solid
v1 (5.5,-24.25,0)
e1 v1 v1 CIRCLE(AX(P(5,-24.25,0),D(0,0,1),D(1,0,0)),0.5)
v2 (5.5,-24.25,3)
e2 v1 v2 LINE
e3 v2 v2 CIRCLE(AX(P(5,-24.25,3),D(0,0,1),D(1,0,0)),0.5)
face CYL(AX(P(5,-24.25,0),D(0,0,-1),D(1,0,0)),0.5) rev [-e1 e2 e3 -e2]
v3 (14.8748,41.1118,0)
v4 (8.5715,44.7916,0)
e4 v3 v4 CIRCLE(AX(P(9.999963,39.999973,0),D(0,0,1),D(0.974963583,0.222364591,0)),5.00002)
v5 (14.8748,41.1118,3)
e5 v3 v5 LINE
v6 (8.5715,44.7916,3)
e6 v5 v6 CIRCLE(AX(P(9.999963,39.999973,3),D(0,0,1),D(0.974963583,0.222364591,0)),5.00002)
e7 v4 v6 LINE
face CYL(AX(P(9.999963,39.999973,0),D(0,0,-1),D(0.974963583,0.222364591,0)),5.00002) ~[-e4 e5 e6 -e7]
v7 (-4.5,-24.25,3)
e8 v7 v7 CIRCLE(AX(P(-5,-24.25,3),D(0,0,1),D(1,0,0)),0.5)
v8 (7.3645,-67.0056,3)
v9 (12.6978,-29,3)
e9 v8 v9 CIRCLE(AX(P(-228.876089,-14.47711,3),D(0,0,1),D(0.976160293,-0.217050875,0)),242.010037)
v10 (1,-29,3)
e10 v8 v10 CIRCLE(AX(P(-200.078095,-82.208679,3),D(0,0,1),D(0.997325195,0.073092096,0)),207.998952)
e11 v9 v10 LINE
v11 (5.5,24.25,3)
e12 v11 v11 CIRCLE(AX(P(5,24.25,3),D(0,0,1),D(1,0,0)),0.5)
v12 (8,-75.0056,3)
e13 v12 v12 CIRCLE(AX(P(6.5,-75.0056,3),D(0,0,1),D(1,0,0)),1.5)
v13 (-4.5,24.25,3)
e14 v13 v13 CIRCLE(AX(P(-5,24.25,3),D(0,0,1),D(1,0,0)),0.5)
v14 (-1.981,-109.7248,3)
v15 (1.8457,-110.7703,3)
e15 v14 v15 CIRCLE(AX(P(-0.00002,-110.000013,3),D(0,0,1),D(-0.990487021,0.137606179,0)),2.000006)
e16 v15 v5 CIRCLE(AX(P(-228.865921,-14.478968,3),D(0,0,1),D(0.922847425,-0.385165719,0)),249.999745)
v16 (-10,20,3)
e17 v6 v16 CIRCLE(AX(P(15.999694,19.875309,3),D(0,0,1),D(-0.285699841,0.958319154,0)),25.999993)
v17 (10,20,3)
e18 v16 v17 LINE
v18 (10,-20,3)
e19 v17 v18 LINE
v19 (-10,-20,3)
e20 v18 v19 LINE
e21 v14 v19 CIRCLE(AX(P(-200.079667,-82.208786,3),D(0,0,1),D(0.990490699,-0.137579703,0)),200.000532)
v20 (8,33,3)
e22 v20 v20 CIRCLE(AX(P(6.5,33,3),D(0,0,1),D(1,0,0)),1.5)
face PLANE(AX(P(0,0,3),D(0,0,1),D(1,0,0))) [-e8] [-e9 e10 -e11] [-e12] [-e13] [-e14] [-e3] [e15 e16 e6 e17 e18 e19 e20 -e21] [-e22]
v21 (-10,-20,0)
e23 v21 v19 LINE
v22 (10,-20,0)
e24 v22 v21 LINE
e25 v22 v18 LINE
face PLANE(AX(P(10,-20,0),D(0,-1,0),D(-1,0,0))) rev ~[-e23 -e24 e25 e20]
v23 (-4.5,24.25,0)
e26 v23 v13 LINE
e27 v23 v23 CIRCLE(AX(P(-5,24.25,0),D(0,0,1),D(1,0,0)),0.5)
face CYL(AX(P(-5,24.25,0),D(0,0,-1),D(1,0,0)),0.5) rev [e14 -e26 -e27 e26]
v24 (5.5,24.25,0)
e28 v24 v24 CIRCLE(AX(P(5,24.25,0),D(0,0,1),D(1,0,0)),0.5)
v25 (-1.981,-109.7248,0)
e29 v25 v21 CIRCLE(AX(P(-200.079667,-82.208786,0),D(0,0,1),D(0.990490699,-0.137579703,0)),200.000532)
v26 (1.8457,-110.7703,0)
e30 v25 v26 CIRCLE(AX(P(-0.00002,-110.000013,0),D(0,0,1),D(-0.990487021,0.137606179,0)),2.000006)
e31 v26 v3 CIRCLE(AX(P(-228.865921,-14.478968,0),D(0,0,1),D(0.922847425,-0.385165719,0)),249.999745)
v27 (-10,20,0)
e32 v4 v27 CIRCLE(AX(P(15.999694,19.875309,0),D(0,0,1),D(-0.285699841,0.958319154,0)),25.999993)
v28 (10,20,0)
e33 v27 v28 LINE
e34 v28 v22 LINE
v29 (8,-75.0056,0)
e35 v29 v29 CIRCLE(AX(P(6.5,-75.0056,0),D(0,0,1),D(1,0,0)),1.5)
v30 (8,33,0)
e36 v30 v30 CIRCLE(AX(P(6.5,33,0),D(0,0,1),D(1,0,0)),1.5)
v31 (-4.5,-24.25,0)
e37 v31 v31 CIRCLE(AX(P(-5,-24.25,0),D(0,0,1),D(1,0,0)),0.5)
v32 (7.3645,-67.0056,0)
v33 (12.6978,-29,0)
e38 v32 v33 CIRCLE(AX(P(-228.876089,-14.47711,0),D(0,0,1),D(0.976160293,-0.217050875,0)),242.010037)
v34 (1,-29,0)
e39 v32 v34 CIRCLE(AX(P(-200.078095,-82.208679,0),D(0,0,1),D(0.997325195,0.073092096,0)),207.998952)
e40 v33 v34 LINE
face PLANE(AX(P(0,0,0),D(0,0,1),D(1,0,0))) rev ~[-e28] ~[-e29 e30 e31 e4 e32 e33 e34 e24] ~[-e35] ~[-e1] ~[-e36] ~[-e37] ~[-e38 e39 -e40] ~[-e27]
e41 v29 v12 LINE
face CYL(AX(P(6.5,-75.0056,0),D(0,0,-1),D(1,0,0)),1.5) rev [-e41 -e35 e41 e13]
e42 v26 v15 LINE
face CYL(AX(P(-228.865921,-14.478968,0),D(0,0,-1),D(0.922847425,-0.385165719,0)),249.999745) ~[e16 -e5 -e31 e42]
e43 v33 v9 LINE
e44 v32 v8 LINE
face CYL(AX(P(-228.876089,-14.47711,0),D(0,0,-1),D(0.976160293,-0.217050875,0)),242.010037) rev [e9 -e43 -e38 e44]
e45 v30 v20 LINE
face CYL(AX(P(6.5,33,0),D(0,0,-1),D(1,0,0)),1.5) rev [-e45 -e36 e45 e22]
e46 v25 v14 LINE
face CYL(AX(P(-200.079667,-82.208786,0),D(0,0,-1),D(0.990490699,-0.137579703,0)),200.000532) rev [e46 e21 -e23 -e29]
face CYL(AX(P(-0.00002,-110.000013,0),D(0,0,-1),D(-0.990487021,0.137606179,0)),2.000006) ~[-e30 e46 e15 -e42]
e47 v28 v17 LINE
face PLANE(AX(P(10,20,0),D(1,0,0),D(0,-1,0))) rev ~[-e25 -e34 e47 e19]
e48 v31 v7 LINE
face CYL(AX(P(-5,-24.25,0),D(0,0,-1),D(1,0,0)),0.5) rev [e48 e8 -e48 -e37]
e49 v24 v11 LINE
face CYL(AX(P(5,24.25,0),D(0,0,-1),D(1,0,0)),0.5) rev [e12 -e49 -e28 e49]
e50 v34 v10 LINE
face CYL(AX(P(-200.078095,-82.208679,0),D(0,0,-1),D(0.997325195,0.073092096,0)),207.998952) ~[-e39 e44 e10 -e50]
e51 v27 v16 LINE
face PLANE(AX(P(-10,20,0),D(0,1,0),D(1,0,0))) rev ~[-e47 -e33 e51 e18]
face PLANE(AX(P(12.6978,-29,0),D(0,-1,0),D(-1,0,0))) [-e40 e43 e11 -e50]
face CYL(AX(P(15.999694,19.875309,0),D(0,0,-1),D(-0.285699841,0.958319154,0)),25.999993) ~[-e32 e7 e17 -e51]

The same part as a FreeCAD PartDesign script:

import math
import FreeCAD as App
import Part
import Sketcher

V = App.Vector
Q = App.Units.Quantity

doc = App.newDocument("Part")
body = doc.addObject("PartDesign::Body", "Body")

# Sketch on XY plane
sketch1 = doc.addObject("Sketcher::SketchObject", "Sketch")
body.addObject(sketch1)
sketch1.AttachmentSupport = (doc.XY_Plane, [""])
sketch1.MapMode = "FlatFace"
sketch1.addGeometry([
    Part.ArcOfCircle(Part.Circle(V(16, 19.9, 0), V(0, 0, 1), 26), math.radians(107), math.radians(180)),  # 0
    Part.LineSegment(V(-10, 20, 0), V(10, 20, 0)),  # 1
    Part.LineSegment(V(10, 20, 0), V(10, -20, 0)),  # 2
    Part.LineSegment(V(10, -20, 0), V(-10, -20, 0)),  # 3
    Part.ArcOfCircle(Part.Circle(V(-200.1, -82.2, 0), V(0, 0, 1), 200), math.radians(-8), math.radians(18)),  # 4
    Part.ArcOfCircle(Part.Circle(V(0, -110, 0), V(0, 0, 1), 2), math.radians(172), math.radians(337)),  # 5
    Part.ArcOfCircle(Part.Circle(V(-228.9, -14.5, 0), V(0, 0, 1), 250), math.radians(-23), math.radians(13)),  # 6
    Part.ArcOfCircle(Part.Circle(V(10, 40, 0), V(0, 0, 1), 5), math.radians(13), math.radians(107)),  # 7
    Part.Circle(V(6.5, -75, 0), V(0, 0, 1), 1.5),  # 8
    Part.ArcOfCircle(Part.Circle(V(-228.9, -14.5, 0), V(0, 0, 1), 242), math.radians(-12.54), math.radians(-3.44)),  # 9
    Part.ArcOfCircle(Part.Circle(V(-200.1, -82.2, 0), V(0, 0, 1), 208), math.radians(4.19), math.radians(14.82)),  # 10
    Part.LineSegment(V(1, -29, 0), V(12.7, -29, 0)),  # 11
    Part.Circle(V(-5, -24.2, 0), V(0, 0, 1), 0.5),  # 12
    Part.Circle(V(5, -24.2, 0), V(0, 0, 1), 0.5),  # 13
    Part.Circle(V(-5, 24.2, 0), V(0, 0, 1), 0.5),  # 14
    Part.Circle(V(5, 24.2, 0), V(0, 0, 1), 0.5),  # 15
    Part.Circle(V(6.5, 33, 0), V(0, 0, 1), 1.5),  # 16
], False)
sketch1.addConstraint([
    Sketcher.Constraint("Coincident", 0, 2, 1, 1),
    Sketcher.Constraint("Coincident", 1, 2, 2, 1),
    Sketcher.Constraint("Coincident", 2, 2, 3, 1),
    Sketcher.Constraint("Coincident", 3, 2, 4, 2),
    Sketcher.Constraint("Tangent", 4, 1, 5, 1),
    Sketcher.Constraint("Tangent", 5, 2, 6, 1),
    Sketcher.Constraint("Tangent", 6, 2, 7, 1),
    Sketcher.Constraint("Tangent", 7, 2, 0, 1),
    Sketcher.Constraint("Coincident", 9, 1, 10, 1),
    Sketcher.Constraint("Coincident", 10, 2, 11, 1),
    Sketcher.Constraint("Coincident", 11, 2, 9, 2),
    Sketcher.Constraint("Horizontal", 1),
    Sketcher.Constraint("Vertical", 2),
    Sketcher.Constraint("Horizontal", 3),
    Sketcher.Constraint("Horizontal", 11),
    Sketcher.Constraint("Equal", 12, 13),
    Sketcher.Constraint("Equal", 13, 14),
    Sketcher.Constraint("Equal", 14, 15),
    Sketcher.Constraint("Equal", 8, 16),
    Sketcher.Constraint("Symmetric", 13, 3, 14, 3, -1, 1),
    Sketcher.Constraint("Symmetric", 12, 3, 15, 3, -1, 1),
    Sketcher.Constraint("Symmetric", 0, 2, 2, 2, -1, 1),
    Sketcher.Constraint("Symmetric", 12, 3, 13, 3, -2),
    Sketcher.Constraint("PointOnObject", 5, 3, -2),
    Sketcher.Constraint("Horizontal", 4, 3, 10, 3),
    Sketcher.Constraint("Vertical", 8, 3, 16, 3),
    Sketcher.Constraint("Vertical", 7, 3, 1, 2),
    Sketcher.Constraint("Vertical", 0, 2, 3, 2),
    Sketcher.Constraint("Diameter", 8, Q("3 mm")),
    Sketcher.Constraint("Diameter", 12, Q("1 mm")),
    Sketcher.Constraint("Radius", 0, Q("26 mm")),
    Sketcher.Constraint("Radius", 4, Q("200 mm")),
    Sketcher.Constraint("Radius", 5, Q("2 mm")),
    Sketcher.Constraint("Radius", 6, Q("250 mm")),
    Sketcher.Constraint("Radius", 7, Q("5 mm")),
    Sketcher.Constraint("DistanceX", 1, 1, 1, 2, Q("20 mm")),
    Sketcher.Constraint("DistanceY", 2, 2, 2, 1, Q("40 mm")),
    Sketcher.Constraint("DistanceY", -1, 1, 7, 3, Q("40 mm")),
    Sketcher.Constraint("DistanceX", 12, 3, -1, 1, Q("5 mm")),
    Sketcher.Constraint("DistanceX", -1, 1, 10, 2, Q("1 mm")),
    Sketcher.Constraint("DistanceY", 5, 3, 7, 3, Q("150 mm")),
    Sketcher.Constraint("DistanceY", 0, 2, 16, 3, Q("13 mm")),
    Sketcher.Constraint("DistanceY", 8, 3, 9, 1, Q("8 mm")),
    Sketcher.Constraint("DistanceY", 10, 2, 2, 2, Q("9 mm")),
    Sketcher.Constraint("DistanceX", -1, 1, 8, 3, Q("6.5 mm")),
    Sketcher.Constraint("Radius", 9, Q("242.01 mm")),
    Sketcher.Constraint("DistanceY", 0, 2, 14, 3, Q("4.25 mm")),
    Sketcher.Constraint("Radius", 10, Q("207.999 mm")),
    Sketcher.Constraint("DistanceX", 9, 3, 6, 3, Q("0.01 mm")),
    Sketcher.Constraint("DistanceX", 11, 1, 11, 2, Q("11.6978 mm")),
])
pad1 = doc.addObject("PartDesign::Pad", "Pad")
body.addObject(pad1)
pad1.Profile = sketch1
pad1.Length = 3

doc.recompute()
